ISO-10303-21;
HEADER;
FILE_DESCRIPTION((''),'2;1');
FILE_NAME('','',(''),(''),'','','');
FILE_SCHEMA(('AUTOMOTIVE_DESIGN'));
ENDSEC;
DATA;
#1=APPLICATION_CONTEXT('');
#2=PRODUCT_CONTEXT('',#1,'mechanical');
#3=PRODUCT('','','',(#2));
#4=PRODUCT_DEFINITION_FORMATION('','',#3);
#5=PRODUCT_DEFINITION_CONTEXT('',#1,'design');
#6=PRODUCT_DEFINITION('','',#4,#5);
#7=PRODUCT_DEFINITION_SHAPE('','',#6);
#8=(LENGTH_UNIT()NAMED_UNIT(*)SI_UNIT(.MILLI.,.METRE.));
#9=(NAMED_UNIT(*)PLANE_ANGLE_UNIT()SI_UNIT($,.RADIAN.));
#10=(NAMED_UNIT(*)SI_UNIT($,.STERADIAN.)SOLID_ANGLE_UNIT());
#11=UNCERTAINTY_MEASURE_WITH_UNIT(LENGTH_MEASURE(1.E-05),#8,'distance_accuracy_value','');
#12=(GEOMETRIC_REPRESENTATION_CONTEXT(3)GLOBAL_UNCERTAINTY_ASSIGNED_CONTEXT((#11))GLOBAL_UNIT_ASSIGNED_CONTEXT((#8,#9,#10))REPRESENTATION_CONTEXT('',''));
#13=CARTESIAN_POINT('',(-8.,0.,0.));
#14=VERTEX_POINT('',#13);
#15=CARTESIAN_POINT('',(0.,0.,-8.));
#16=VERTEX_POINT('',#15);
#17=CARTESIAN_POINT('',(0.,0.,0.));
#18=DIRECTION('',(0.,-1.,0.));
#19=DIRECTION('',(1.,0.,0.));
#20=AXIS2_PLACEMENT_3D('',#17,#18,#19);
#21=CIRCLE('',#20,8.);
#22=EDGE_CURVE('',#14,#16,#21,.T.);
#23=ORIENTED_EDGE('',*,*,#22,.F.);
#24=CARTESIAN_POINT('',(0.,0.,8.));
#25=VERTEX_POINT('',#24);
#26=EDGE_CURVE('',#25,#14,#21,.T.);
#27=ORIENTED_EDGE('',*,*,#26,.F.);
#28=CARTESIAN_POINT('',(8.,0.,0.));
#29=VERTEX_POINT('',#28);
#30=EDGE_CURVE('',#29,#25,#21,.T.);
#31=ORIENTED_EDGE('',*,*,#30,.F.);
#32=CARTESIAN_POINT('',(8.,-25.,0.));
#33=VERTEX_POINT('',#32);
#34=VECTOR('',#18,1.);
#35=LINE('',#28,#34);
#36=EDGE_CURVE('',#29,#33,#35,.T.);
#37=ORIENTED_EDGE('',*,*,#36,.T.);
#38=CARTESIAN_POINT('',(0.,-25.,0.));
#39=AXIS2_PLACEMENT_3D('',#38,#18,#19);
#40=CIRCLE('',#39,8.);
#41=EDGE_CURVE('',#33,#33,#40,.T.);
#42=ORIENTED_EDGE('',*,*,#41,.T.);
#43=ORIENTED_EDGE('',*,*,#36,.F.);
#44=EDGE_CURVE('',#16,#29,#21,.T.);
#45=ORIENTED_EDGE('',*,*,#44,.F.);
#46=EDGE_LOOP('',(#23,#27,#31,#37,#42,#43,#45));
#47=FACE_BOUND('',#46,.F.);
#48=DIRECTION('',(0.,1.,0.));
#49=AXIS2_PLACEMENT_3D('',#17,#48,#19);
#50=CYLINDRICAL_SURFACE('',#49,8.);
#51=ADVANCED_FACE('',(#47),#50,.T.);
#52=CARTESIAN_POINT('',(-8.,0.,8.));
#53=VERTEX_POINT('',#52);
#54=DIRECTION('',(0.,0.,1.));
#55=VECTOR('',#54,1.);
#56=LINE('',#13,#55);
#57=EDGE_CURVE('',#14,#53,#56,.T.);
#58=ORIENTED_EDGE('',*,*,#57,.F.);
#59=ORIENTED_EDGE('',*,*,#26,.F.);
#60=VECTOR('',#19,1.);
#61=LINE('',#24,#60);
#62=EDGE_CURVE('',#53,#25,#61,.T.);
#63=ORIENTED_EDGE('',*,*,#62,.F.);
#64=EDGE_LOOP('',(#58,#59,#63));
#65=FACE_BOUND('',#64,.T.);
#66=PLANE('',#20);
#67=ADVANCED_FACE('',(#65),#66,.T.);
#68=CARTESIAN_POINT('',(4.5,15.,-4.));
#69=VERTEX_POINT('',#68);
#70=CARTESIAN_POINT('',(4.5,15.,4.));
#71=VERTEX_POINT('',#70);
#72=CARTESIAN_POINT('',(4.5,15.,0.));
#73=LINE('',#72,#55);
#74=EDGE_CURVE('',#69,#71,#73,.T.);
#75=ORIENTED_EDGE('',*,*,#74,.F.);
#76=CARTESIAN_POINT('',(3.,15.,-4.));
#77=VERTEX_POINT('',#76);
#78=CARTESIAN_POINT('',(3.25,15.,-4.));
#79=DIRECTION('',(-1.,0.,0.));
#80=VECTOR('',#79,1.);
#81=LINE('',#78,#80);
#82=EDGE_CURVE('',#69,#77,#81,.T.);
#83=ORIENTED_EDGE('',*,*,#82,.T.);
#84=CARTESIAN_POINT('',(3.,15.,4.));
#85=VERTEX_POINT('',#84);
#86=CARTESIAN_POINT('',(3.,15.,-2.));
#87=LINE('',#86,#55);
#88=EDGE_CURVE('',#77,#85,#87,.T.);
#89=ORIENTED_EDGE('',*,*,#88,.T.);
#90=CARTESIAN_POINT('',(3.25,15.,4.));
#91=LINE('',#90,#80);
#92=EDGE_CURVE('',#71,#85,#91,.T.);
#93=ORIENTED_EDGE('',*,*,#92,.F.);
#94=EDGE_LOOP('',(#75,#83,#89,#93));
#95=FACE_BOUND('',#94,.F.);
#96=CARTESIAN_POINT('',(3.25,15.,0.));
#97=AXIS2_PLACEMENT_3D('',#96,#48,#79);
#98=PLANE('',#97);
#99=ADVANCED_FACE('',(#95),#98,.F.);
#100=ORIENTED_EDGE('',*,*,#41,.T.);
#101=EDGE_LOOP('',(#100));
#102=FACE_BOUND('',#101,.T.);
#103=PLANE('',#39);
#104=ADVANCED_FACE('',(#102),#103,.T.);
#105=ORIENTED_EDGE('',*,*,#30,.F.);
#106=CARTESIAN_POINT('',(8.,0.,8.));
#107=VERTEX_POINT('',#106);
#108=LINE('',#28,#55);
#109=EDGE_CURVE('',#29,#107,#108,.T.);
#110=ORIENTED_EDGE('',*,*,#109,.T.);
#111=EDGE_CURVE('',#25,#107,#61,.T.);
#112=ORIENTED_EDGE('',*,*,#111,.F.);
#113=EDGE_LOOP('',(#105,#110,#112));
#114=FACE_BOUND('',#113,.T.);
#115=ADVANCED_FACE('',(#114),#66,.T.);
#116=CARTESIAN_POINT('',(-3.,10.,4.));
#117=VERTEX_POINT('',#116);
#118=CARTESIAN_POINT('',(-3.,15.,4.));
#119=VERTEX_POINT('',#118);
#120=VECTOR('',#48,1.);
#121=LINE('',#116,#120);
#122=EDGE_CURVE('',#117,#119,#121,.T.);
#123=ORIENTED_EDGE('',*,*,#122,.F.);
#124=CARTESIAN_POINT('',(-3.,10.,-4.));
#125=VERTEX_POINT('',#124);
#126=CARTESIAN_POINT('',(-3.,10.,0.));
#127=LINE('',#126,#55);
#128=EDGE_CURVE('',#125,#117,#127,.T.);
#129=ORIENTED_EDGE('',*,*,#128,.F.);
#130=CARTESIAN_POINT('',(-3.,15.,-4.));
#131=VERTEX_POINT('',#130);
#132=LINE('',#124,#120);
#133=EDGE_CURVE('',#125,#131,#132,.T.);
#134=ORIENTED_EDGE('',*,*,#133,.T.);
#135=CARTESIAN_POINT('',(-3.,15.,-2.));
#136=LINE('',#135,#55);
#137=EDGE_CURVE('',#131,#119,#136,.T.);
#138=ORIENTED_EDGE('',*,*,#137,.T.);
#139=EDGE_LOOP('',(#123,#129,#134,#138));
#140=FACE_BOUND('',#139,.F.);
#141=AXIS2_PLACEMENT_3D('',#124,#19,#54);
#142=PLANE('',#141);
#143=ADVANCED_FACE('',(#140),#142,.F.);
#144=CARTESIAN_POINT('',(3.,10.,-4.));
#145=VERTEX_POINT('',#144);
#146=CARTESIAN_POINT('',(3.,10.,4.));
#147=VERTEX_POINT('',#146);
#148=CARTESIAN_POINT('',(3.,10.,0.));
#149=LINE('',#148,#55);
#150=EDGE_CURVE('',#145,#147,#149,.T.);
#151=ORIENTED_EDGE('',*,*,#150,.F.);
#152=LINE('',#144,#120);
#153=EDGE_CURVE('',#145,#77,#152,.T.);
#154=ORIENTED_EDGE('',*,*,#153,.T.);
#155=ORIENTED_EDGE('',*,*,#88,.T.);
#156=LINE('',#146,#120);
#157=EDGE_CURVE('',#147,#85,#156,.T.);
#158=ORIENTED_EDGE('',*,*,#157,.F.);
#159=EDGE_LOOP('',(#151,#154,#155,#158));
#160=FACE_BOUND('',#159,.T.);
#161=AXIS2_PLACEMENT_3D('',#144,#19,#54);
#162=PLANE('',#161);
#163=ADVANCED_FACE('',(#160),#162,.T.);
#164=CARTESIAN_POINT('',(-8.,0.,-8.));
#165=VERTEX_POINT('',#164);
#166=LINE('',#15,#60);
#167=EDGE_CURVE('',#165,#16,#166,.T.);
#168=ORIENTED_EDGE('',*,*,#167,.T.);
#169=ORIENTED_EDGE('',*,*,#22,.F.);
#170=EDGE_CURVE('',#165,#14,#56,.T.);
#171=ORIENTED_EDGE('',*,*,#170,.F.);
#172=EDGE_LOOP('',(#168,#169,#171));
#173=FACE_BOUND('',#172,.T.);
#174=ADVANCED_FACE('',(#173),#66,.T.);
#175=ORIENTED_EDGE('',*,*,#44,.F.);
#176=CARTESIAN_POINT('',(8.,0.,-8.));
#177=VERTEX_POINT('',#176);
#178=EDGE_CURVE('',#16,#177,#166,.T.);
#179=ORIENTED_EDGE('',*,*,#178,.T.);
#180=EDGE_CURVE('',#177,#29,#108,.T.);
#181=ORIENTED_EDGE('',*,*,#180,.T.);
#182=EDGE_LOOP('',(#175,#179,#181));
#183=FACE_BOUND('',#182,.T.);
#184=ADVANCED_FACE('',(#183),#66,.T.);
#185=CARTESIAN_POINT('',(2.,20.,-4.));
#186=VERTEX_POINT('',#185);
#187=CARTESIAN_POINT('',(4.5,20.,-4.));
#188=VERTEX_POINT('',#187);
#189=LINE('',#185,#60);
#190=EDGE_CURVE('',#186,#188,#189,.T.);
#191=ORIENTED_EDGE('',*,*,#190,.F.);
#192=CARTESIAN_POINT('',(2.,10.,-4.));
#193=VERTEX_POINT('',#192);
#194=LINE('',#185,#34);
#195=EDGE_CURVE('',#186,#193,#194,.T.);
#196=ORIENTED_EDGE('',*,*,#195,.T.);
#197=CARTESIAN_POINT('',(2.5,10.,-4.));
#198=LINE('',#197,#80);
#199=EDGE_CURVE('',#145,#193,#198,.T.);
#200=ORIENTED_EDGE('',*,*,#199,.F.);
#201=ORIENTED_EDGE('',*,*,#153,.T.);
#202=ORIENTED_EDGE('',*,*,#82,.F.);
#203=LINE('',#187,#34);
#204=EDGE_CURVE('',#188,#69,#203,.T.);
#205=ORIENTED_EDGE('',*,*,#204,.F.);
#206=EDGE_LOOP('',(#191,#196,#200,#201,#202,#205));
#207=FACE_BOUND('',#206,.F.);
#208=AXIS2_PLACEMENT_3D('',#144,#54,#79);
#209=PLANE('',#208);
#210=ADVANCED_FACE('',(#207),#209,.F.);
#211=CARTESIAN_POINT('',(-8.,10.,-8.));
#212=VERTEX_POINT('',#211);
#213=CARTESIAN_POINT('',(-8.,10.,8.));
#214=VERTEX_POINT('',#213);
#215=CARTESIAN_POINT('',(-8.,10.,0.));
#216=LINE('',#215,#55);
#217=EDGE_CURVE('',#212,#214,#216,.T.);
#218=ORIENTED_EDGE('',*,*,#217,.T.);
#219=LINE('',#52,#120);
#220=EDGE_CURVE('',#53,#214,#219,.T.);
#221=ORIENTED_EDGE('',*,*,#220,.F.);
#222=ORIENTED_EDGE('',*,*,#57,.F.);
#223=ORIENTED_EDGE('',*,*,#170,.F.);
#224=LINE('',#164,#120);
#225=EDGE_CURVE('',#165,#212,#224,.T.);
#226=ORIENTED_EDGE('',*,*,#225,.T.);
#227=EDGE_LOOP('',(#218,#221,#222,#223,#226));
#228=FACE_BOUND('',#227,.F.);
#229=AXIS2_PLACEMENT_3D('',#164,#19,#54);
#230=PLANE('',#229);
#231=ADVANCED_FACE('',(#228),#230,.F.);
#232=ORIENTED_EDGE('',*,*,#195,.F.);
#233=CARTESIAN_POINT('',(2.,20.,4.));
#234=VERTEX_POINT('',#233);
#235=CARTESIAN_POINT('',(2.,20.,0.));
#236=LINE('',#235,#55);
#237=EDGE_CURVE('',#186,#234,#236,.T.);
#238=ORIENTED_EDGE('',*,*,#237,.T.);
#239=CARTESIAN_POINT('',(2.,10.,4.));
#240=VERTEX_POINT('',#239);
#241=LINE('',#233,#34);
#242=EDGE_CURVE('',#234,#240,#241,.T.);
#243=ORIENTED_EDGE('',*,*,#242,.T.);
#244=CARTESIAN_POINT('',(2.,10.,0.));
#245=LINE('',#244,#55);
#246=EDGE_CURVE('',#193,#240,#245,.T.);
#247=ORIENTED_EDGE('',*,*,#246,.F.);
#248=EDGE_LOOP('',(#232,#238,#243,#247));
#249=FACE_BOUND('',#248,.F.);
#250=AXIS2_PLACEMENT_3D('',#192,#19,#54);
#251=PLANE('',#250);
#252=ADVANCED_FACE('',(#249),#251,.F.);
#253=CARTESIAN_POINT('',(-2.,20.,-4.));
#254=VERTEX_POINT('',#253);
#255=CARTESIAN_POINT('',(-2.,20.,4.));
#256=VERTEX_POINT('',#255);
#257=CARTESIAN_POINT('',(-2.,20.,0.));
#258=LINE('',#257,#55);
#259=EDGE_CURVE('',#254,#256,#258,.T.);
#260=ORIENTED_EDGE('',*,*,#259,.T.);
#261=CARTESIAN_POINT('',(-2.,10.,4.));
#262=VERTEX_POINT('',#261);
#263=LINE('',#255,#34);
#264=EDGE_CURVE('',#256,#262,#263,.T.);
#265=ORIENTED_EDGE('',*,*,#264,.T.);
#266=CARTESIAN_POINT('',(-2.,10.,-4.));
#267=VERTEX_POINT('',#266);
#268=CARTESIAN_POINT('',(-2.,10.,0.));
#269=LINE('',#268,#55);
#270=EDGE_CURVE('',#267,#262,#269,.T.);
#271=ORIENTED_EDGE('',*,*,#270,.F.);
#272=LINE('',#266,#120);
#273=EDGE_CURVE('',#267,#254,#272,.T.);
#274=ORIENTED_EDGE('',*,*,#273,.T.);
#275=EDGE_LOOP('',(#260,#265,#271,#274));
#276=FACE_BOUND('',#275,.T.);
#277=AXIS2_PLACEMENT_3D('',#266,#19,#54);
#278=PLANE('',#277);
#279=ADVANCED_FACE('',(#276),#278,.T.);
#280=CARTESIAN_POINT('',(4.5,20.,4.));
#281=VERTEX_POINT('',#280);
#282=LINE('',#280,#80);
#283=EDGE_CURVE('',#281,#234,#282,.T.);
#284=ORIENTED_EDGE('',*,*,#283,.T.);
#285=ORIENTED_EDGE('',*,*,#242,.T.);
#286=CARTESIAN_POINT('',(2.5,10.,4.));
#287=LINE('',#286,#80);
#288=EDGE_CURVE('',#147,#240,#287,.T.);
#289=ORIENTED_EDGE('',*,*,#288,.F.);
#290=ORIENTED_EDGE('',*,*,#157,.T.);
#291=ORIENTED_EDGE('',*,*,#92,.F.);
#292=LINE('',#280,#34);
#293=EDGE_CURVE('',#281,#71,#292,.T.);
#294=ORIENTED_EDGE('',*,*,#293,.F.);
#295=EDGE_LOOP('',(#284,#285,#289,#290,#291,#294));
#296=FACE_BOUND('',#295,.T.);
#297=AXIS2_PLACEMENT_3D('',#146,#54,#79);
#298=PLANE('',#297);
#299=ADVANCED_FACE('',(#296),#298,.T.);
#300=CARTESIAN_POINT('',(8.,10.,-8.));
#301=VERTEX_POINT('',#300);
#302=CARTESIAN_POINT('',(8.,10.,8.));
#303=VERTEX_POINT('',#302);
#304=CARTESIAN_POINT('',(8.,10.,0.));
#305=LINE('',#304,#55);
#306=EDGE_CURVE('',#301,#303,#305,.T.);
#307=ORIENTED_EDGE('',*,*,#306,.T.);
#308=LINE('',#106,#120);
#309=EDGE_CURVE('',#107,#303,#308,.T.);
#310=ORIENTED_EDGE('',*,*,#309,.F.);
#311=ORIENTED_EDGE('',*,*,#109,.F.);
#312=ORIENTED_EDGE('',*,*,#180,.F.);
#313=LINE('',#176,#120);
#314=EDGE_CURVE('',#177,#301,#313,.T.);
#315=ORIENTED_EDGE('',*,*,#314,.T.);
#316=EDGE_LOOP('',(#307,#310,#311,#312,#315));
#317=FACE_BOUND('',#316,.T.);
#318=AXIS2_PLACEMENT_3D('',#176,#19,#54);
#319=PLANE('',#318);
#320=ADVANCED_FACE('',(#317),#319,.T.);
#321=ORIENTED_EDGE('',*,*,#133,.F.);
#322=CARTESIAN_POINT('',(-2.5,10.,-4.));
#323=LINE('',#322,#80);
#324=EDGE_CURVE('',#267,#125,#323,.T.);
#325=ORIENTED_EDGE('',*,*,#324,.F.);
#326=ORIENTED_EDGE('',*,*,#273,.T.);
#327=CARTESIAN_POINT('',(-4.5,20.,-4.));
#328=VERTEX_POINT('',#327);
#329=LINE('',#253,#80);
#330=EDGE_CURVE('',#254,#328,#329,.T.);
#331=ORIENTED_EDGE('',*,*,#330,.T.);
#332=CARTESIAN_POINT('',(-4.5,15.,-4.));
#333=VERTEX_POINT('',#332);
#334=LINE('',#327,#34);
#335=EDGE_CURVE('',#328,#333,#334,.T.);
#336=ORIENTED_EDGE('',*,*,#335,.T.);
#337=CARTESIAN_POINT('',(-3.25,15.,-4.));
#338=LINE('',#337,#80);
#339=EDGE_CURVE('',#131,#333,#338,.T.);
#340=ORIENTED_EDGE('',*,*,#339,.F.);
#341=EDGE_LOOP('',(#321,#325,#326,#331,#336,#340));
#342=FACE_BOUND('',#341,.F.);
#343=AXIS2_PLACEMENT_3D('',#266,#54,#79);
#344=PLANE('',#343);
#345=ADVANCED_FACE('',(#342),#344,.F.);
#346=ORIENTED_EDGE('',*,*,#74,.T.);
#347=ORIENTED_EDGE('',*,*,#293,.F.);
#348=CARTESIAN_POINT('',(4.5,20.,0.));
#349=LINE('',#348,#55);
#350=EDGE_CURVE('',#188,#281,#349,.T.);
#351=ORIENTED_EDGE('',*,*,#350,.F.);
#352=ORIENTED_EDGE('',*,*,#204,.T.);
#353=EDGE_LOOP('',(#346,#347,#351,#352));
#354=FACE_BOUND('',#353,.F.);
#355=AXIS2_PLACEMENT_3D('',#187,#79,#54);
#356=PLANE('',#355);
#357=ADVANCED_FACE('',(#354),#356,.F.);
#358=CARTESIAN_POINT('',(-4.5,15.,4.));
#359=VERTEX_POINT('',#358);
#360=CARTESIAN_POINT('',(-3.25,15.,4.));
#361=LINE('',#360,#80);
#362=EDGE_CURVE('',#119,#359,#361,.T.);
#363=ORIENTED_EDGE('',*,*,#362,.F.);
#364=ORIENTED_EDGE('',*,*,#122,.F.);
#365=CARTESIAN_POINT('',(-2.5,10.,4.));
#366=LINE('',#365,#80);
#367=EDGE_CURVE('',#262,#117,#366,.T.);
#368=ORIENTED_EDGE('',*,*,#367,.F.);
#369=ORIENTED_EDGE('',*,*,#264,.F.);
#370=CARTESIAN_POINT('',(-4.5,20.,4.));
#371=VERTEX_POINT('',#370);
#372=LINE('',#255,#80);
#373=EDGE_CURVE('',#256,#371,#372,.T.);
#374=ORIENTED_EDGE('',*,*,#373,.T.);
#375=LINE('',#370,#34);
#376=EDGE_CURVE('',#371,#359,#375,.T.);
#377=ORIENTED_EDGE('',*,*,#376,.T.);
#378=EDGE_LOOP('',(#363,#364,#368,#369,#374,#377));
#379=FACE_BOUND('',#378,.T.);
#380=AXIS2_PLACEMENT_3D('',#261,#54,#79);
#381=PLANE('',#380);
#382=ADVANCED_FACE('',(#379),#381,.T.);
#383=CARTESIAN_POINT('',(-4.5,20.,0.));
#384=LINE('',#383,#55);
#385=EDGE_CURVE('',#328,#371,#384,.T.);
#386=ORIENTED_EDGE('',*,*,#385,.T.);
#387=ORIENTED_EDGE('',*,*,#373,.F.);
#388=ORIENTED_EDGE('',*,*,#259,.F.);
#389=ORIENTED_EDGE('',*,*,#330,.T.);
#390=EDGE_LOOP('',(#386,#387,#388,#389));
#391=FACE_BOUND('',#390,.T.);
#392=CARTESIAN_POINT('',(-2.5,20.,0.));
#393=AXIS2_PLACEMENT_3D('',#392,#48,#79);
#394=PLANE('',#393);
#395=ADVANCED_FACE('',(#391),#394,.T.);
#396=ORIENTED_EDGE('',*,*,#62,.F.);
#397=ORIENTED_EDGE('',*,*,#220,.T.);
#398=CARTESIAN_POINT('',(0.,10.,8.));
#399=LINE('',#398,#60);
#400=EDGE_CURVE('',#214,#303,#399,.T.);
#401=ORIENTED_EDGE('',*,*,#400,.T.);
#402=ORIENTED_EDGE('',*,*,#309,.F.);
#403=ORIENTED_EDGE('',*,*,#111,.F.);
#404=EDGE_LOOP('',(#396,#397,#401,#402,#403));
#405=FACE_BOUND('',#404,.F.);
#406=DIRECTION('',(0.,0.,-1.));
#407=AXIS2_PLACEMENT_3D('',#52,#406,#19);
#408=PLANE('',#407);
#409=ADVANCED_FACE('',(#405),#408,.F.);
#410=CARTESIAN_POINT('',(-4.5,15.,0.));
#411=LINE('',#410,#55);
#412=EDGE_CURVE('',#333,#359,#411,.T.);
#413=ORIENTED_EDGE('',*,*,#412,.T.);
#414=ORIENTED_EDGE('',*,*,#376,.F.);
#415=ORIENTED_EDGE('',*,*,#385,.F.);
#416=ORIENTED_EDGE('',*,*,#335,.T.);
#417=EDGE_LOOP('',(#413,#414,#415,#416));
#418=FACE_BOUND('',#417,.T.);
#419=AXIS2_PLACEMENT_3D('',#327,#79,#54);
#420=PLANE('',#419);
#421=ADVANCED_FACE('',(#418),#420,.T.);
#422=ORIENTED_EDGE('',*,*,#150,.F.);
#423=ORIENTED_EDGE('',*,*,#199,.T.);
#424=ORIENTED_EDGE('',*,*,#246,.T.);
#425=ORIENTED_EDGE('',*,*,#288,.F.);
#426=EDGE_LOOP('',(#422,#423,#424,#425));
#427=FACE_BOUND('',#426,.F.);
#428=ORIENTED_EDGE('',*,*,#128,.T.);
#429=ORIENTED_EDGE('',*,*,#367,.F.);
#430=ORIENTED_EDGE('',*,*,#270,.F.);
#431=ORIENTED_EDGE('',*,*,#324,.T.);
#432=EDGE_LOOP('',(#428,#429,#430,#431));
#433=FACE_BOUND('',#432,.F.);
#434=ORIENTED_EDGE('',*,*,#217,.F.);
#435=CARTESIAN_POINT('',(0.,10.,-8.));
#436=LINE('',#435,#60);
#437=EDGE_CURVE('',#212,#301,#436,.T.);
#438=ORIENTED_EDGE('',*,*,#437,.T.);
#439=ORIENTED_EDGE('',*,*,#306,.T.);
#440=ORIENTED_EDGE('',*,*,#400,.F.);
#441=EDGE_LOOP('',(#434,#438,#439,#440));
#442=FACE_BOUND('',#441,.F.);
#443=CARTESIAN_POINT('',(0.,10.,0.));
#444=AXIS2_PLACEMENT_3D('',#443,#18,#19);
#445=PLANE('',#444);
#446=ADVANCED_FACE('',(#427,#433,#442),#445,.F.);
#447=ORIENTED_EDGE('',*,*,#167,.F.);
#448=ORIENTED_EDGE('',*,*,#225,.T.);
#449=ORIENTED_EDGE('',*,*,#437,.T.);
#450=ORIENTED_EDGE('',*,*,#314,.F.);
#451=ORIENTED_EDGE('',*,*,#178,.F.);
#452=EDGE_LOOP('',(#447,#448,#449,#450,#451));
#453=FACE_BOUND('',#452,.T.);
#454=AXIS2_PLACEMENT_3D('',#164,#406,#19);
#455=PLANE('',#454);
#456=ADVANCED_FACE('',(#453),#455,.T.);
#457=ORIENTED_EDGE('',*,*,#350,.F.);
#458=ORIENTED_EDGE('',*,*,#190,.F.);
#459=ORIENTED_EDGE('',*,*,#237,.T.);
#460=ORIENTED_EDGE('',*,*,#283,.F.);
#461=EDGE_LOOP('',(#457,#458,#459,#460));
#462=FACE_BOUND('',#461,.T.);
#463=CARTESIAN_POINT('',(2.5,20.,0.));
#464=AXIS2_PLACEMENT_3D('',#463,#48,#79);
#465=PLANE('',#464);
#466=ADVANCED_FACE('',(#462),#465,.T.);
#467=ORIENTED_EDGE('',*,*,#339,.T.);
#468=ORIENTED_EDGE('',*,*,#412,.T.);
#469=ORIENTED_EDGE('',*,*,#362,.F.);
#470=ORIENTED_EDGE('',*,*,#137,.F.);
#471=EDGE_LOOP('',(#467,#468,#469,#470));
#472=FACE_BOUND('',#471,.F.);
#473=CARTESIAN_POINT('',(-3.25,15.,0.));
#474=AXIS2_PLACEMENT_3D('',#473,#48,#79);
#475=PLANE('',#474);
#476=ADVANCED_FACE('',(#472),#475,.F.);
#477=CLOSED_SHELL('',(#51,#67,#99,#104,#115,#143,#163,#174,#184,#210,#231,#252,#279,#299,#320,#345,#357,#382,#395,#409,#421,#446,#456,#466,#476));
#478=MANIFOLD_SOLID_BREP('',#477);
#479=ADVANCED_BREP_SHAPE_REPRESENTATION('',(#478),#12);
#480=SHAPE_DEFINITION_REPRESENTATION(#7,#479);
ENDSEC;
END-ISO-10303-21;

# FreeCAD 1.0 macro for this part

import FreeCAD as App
import Part
import Sketcher

V = App.Vector
Q = App.Units.Quantity


def add_polygon(sketch, points):
    """Adds a closed chain of lines whose ends are joined by coincident constraints."""
    first, n = sketch.GeometryCount, len(points)
    for a, b in zip(points, points[1:] + points[:1]):
        sketch.addGeometry(Part.LineSegment(App.Vector(*a, 0), App.Vector(*b, 0)), False)
    for i in range(n):
        sketch.addConstraint(Sketcher.Constraint("Coincident", first + i, 2, first + (i + 1) % n, 1))

doc = App.newDocument("Part")
body = doc.addObject("PartDesign::Body", "Body")

sketch1 = body.newObject("Sketcher::SketchObject", "Sketch")
sketch1.AttachmentSupport = (doc.getObject("XZ_Plane"), [""])
sketch1.MapMode = "FlatFace"
sketch1.addGeometry(Part.Circle(V(0, 0, 0), V(0, 0, 1), 8), False)
sketch1.addConstraint([
    Sketcher.Constraint("Coincident", 0, 3, -1, 1),
    Sketcher.Constraint("Diameter", 0, Q("16 mm")),
])
pad1 = body.newObject("PartDesign::Pad", "Pad")
pad1.Profile = sketch1
pad1.Length = 25

sketch2 = body.newObject("Sketcher::SketchObject", "Sketch001")
sketch2.AttachmentSupport = (doc.getObject("XZ_Plane"), [""])
sketch2.MapMode = "FlatFace"
add_polygon(sketch2, [(-8, 8), (-8, -8), (8, -8), (8, 8)])
sketch2.addConstraint([
    Sketcher.Constraint("Vertical", 0),
    Sketcher.Constraint("Horizontal", 1),
    Sketcher.Constraint("Vertical", 2),
    Sketcher.Constraint("Horizontal", 3),
    Sketcher.Constraint("Symmetric", 0, 2, 2, 2, -1, 1),
    Sketcher.Constraint("Equal", 3, 0),
    Sketcher.Constraint("DistanceX", 1, 1, 1, 2, Q("16 mm")),
])
pad2 = body.newObject("PartDesign::Pad", "Pad001")
pad2.Profile = sketch2
pad2.Length = 10
pad2.Reversed = True

sketch3 = body.newObject("Sketcher::SketchObject", "Sketch002")
sketch3.AttachmentSupport = (doc.getObject("XZ_Plane"), [""])
sketch3.MapMode = "FlatFace"
sketch3.AttachmentOffset = App.Placement(V(0, 0, -10), App.Rotation())
add_polygon(sketch3, [(-2, 4), (-2, -4), (-3, -4), (-3, 4)])
add_polygon(sketch3, [(3, 4), (3, -4), (2, -4), (2, 4)])
sketch3.addConstraint([
    Sketcher.Constraint("Vertical", 0),
    Sketcher.Constraint("Horizontal", 1),
    Sketcher.Constraint("Vertical", 2),
    Sketcher.Constraint("Horizontal", 3),
    Sketcher.Constraint("Vertical", 4),
    Sketcher.Constraint("Horizontal", 5),
    Sketcher.Constraint("Vertical", 6),
    Sketcher.Constraint("Horizontal", 7),
    Sketcher.Constraint("Symmetric", 2, 2, 4, 2, -1, 1),
    Sketcher.Constraint("Symmetric", 0, 2, 6, 2, -1, 1),
    Sketcher.Constraint("Horizontal", 1, 2, 4, 2),
    Sketcher.Constraint("DistanceX", 1, 2, 1, 1, Q("1 mm")),
    Sketcher.Constraint("DistanceY", 0, 2, 0, 1, Q("8 mm")),
    Sketcher.Constraint("DistanceX", 0, 2, -1, 1, Q("2 mm")),
])
pad3 = body.newObject("PartDesign::Pad", "Pad002")
pad3.Profile = sketch3
pad3.Length = 10
pad3.Reversed = True

sketch4 = body.newObject("Sketcher::SketchObject", "Sketch003")
sketch4.AttachmentSupport = (doc.getObject("XZ_Plane"), [""])
sketch4.MapMode = "FlatFace"
sketch4.AttachmentOffset = App.Placement(V(0, 0, -20), App.Rotation())
add_polygon(sketch4, [(-2, 4), (-2, -4), (-4.5, -4), (-4.5, 4)])
add_polygon(sketch4, [(4.5, 4), (4.5, -4), (2, -4), (2, 4)])
sketch4.addConstraint([
    Sketcher.Constraint("Vertical", 0),
    Sketcher.Constraint("Horizontal", 1),
    Sketcher.Constraint("Vertical", 2),
    Sketcher.Constraint("Horizontal", 3),
    Sketcher.Constraint("Vertical", 4),
    Sketcher.Constraint("Horizontal", 5),
    Sketcher.Constraint("Vertical", 6),
    Sketcher.Constraint("Horizontal", 7),
    Sketcher.Constraint("Symmetric", 2, 2, 4, 2, -1, 1),
    Sketcher.Constraint("Symmetric", 0, 2, 6, 2, -1, 1),
    Sketcher.Constraint("Horizontal", 1, 2, 4, 2),
    Sketcher.Constraint("DistanceY", 0, 2, 0, 1, Q("8 mm")),
    Sketcher.Constraint("DistanceX", 1, 2, 1, 1, Q("2.5 mm")),
    Sketcher.Constraint("DistanceX", 0, 2, -1, 1, Q("2 mm")),
])
pad4 = body.newObject("PartDesign::Pad", "Pad003")
pad4.Profile = sketch4
pad4.Length = 5

doc.recompute()
